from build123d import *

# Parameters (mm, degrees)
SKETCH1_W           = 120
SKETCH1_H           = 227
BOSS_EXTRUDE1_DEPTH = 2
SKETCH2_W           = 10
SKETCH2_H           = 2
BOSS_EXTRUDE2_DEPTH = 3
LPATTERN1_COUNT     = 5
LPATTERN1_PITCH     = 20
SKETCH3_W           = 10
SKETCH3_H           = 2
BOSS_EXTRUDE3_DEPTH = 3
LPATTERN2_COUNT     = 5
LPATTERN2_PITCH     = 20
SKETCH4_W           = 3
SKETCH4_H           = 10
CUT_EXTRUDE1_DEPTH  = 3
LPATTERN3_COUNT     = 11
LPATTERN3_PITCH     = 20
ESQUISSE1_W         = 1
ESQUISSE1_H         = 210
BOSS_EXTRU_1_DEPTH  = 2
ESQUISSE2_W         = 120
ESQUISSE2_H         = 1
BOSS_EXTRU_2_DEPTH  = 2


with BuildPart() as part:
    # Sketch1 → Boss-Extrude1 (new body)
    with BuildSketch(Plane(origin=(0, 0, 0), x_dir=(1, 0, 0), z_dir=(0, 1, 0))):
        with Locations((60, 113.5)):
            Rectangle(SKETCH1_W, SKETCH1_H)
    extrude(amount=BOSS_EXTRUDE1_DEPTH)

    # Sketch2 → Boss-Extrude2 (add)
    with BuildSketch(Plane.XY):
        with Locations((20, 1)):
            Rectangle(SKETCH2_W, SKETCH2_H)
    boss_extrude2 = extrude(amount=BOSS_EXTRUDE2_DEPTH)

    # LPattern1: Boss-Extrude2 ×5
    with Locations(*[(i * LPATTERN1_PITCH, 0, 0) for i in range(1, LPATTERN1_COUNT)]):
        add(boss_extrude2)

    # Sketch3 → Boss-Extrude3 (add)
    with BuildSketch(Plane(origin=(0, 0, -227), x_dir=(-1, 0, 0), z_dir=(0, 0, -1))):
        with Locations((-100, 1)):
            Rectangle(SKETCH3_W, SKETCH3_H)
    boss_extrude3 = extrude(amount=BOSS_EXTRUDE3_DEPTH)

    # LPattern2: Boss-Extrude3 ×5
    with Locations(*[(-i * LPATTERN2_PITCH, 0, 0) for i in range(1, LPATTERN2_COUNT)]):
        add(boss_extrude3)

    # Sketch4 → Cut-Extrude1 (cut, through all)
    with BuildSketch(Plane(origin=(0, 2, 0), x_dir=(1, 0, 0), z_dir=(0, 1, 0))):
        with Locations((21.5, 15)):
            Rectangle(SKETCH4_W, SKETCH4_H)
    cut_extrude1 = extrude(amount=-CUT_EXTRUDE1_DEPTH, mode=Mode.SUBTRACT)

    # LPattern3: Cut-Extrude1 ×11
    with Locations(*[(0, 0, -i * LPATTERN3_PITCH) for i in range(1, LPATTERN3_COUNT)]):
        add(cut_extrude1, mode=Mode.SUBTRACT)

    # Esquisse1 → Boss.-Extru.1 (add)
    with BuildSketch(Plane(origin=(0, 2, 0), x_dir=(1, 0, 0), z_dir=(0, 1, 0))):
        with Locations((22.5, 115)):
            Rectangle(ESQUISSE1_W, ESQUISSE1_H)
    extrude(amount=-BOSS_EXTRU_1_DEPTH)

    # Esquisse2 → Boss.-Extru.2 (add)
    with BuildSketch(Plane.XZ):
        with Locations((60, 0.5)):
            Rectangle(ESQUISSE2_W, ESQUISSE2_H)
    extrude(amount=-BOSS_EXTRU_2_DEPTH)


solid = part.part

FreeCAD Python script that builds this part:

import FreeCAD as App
import Part
import Sketcher

doc = App.newDocument("Part")
body = doc.addObject("PartDesign::Body", "Body")

sketch1 = body.newObject("Sketcher::SketchObject", "Sketch")
sketch1.AttachmentSupport = (doc.getObject("XZ_Plane"), [""])
sketch1.MapMode = "FlatFace"
sketch1.addGeometry([
    Part.LineSegment(App.Vector(0, -227, 0), App.Vector(0, 0, 0)),
    Part.LineSegment(App.Vector(0, 0, 0), App.Vector(120, 0, 0)),
    Part.LineSegment(App.Vector(120, 0, 0), App.Vector(120, -227, 0)),
    Part.LineSegment(App.Vector(120, -227, 0), App.Vector(0, -227, 0)),
], False)
sketch1.addConstraint([
    Sketcher.Constraint("Coincident", 0, 2, 1, 1),
    Sketcher.Constraint("Coincident", 1, 2, 2, 1),
    Sketcher.Constraint("Coincident", 2, 2, 3, 1),
    Sketcher.Constraint("Coincident", 3, 2, 0, 1),
    Sketcher.Constraint("Vertical", 0),
    Sketcher.Constraint("Horizontal", 1),
    Sketcher.Constraint("Vertical", 2),
    Sketcher.Constraint("Horizontal", 3),
    Sketcher.Constraint("Coincident", 0, 2, -1, 1),
    Sketcher.Constraint("DistanceX", 1, 1, 1, 2, 120.0),
    Sketcher.Constraint("DistanceY", 0, 1, 0, 2, 227.0),
])
pad1 = body.newObject("PartDesign::Pad", "Pad")
pad1.Profile = sketch1
pad1.Length = 2
pad1.Reversed = True

sketch2 = body.newObject("Sketcher::SketchObject", "Sketch001")
sketch2.AttachmentSupport = (doc.getObject("XY_Plane"), [""])
sketch2.MapMode = "FlatFace"
sketch2.addGeometry([
    Part.LineSegment(App.Vector(15, 2, 0), App.Vector(15, 0, 0)),
    Part.LineSegment(App.Vector(15, 0, 0), App.Vector(25, 0, 0)),
    Part.LineSegment(App.Vector(25, 0, 0), App.Vector(25, 2, 0)),
    Part.LineSegment(App.Vector(25, 2, 0), App.Vector(15, 2, 0)),
], False)
sketch2.addConstraint([
    Sketcher.Constraint("Coincident", 0, 2, 1, 1),
    Sketcher.Constraint("Coincident", 1, 2, 2, 1),
    Sketcher.Constraint("Coincident", 2, 2, 3, 1),
    Sketcher.Constraint("Coincident", 3, 2, 0, 1),
    Sketcher.Constraint("Vertical", 0),
    Sketcher.Constraint("Horizontal", 1),
    Sketcher.Constraint("Vertical", 2),
    Sketcher.Constraint("Horizontal", 3),
    Sketcher.Constraint("PointOnObject", 0, 2, -1),
    Sketcher.Constraint("DistanceX", 1, 1, 1, 2, 10.0),
    Sketcher.Constraint("DistanceY", 0, 2, 0, 1, 2.0),
    Sketcher.Constraint("DistanceX", -1, 1, 0, 2, 15.0),
])
pad2 = body.newObject("PartDesign::Pad", "Pad001")
pad2.Profile = sketch2
pad2.Length = 3
doc.recompute()

linearpattern = body.newObject("PartDesign::LinearPattern", "LinearPattern")
linearpattern.Originals = [pad2]
linearpattern.Direction = (doc.getObject("X_Axis"), [""])
linearpattern.Mode = "offset"
linearpattern.Offset = 20
linearpattern.Occurrences = 5
body.Tip = linearpattern

sketch3 = body.newObject("Sketcher::SketchObject", "Sketch002")
sketch3.AttachmentSupport = (doc.getObject("XY_Plane"), [""])
sketch3.MapMode = "FlatFace"
sketch3.AttachmentOffset = App.Placement(App.Vector(0, 0, -227), App.Rotation())
sketch3.addGeometry([
    Part.LineSegment(App.Vector(105, 2, 0), App.Vector(105, 0, 0)),
    Part.LineSegment(App.Vector(105, 0, 0), App.Vector(95, 0, 0)),
    Part.LineSegment(App.Vector(95, 0, 0), App.Vector(95, 2, 0)),
    Part.LineSegment(App.Vector(95, 2, 0), App.Vector(105, 2, 0)),
], False)
sketch3.addConstraint([
    Sketcher.Constraint("Coincident", 0, 2, 1, 1),
    Sketcher.Constraint("Coincident", 1, 2, 2, 1),
    Sketcher.Constraint("Coincident", 2, 2, 3, 1),
    Sketcher.Constraint("Coincident", 3, 2, 0, 1),
    Sketcher.Constraint("Vertical", 0),
    Sketcher.Constraint("Horizontal", 1),
    Sketcher.Constraint("Vertical", 2),
    Sketcher.Constraint("Horizontal", 3),
    Sketcher.Constraint("PointOnObject", 0, 2, -1),
    Sketcher.Constraint("DistanceX", 1, 2, 1, 1, 10.0),
    Sketcher.Constraint("DistanceY", 0, 2, 0, 1, 2.0),
    Sketcher.Constraint("DistanceX", -1, 1, 0, 2, 105.0),
])
pad3 = body.newObject("PartDesign::Pad", "Pad002")
pad3.Profile = sketch3
pad3.Length = 3
pad3.Reversed = True
doc.recompute()

linearpattern2 = body.newObject("PartDesign::LinearPattern", "LinearPattern001")
linearpattern2.Originals = [pad3]
linearpattern2.Direction = (doc.getObject("X_Axis"), [""])
linearpattern2.Mode = "offset"
linearpattern2.Offset = 20
linearpattern2.Occurrences = 5
linearpattern2.Reversed = True
body.Tip = linearpattern2

sketch4 = body.newObject("Sketcher::SketchObject", "Sketch003")
sketch4.AttachmentSupport = (doc.getObject("XZ_Plane"), [""])
sketch4.MapMode = "FlatFace"
sketch4.AttachmentOffset = App.Placement(App.Vector(0, 0, -2), App.Rotation())
sketch4.addGeometry([
    Part.LineSegment(App.Vector(20, -20, 0), App.Vector(20, -10, 0)),
    Part.LineSegment(App.Vector(20, -10, 0), App.Vector(23, -10, 0)),
    Part.LineSegment(App.Vector(23, -10, 0), App.Vector(23, -20, 0)),
    Part.LineSegment(App.Vector(23, -20, 0), App.Vector(20, -20, 0)),
], False)
sketch4.addConstraint([
    Sketcher.Constraint("Coincident", 0, 2, 1, 1),
    Sketcher.Constraint("Coincident", 1, 2, 2, 1),
    Sketcher.Constraint("Coincident", 2, 2, 3, 1),
    Sketcher.Constraint("Coincident", 3, 2, 0, 1),
    Sketcher.Constraint("Vertical", 0),
    Sketcher.Constraint("Horizontal", 1),
    Sketcher.Constraint("Vertical", 2),
    Sketcher.Constraint("Horizontal", 3),
    Sketcher.Constraint("DistanceX", 1, 1, 1, 2, 3.0),
    Sketcher.Constraint("DistanceY", 0, 1, 0, 2, 10.0),
    Sketcher.Constraint("DistanceX", -1, 1, 0, 2, 20.0),
    Sketcher.Constraint("DistanceY", 0, 2, -1, 1, 10.0),
])
pocket1 = body.newObject("PartDesign::Pocket", "Pocket")
pocket1.Profile = sketch4
pocket1.Type = "ThroughAll"
pocket1.Reversed = True
doc.recompute()

linearpattern3 = body.newObject("PartDesign::LinearPattern", "LinearPattern002")
linearpattern3.Originals = [pocket1]
linearpattern3.Direction = (doc.getObject("Z_Axis"), [""])
linearpattern3.Mode = "offset"
linearpattern3.Offset = 20
linearpattern3.Occurrences = 11
linearpattern3.Reversed = True
body.Tip = linearpattern3

sketch5 = body.newObject("Sketcher::SketchObject", "Sketch004")
sketch5.AttachmentSupport = (doc.getObject("XZ_Plane"), [""])
sketch5.MapMode = "FlatFace"
sketch5.AttachmentOffset = App.Placement(App.Vector(0, 0, -2), App.Rotation())
sketch5.addGeometry([
    Part.LineSegment(App.Vector(22, -220, 0), App.Vector(22, -10, 0)),
    Part.LineSegment(App.Vector(22, -10, 0), App.Vector(23, -10, 0)),
    Part.LineSegment(App.Vector(23, -10, 0), App.Vector(23, -220, 0)),
    Part.LineSegment(App.Vector(23, -220, 0), App.Vector(22, -220, 0)),
], False)
sketch5.addConstraint([
    Sketcher.Constraint("Coincident", 0, 2, 1, 1),
    Sketcher.Constraint("Coincident", 1, 2, 2, 1),
    Sketcher.Constraint("Coincident", 2, 2, 3, 1),
    Sketcher.Constraint("Coincident", 3, 2, 0, 1),
    Sketcher.Constraint("Vertical", 0),
    Sketcher.Constraint("Horizontal", 1),
    Sketcher.Constraint("Vertical", 2),
    Sketcher.Constraint("Horizontal", 3),
    Sketcher.Constraint("DistanceX", 1, 1, 1, 2, 1.0),
    Sketcher.Constraint("DistanceY", 0, 1, 0, 2, 210.0),
    Sketcher.Constraint("DistanceX", -1, 1, 0, 2, 22.0),
    Sketcher.Constraint("DistanceY", 0, 2, -1, 1, 10.0),
])
pad4 = body.newObject("PartDesign::Pad", "Pad003")
pad4.Profile = sketch5
pad4.Length = 2

sketch6 = body.newObject("Sketcher::SketchObject", "Sketch005")
sketch6.AttachmentSupport = (doc.getObject("XZ_Plane"), [""])
sketch6.MapMode = "FlatFace"
sketch6.addGeometry([
    Part.LineSegment(App.Vector(0, 1, 0), App.Vector(0, 0, 0)),
    Part.LineSegment(App.Vector(0, 0, 0), App.Vector(120, 0, 0)),
    Part.LineSegment(App.Vector(120, 0, 0), App.Vector(120, 1, 0)),
    Part.LineSegment(App.Vector(120, 1, 0), App.Vector(0, 1, 0)),
], False)
sketch6.addConstraint([
    Sketcher.Constraint("Coincident", 0, 2, 1, 1),
    Sketcher.Constraint("Coincident", 1, 2, 2, 1),
    Sketcher.Constraint("Coincident", 2, 2, 3, 1),
    Sketcher.Constraint("Coincident", 3, 2, 0, 1),
    Sketcher.Constraint("Vertical", 0),
    Sketcher.Constraint("Horizontal", 1),
    Sketcher.Constraint("Vertical", 2),
    Sketcher.Constraint("Horizontal", 3),
    Sketcher.Constraint("Coincident", 0, 2, -1, 1),
    Sketcher.Constraint("DistanceX", 1, 1, 1, 2, 120.0),
    Sketcher.Constraint("DistanceY", 0, 2, 0, 1, 1.0),
])
pad5 = body.newObject("PartDesign::Pad", "Pad004")
pad5.Profile = sketch6
pad5.Length = 2
pad5.Reversed = True

doc.recompute()
